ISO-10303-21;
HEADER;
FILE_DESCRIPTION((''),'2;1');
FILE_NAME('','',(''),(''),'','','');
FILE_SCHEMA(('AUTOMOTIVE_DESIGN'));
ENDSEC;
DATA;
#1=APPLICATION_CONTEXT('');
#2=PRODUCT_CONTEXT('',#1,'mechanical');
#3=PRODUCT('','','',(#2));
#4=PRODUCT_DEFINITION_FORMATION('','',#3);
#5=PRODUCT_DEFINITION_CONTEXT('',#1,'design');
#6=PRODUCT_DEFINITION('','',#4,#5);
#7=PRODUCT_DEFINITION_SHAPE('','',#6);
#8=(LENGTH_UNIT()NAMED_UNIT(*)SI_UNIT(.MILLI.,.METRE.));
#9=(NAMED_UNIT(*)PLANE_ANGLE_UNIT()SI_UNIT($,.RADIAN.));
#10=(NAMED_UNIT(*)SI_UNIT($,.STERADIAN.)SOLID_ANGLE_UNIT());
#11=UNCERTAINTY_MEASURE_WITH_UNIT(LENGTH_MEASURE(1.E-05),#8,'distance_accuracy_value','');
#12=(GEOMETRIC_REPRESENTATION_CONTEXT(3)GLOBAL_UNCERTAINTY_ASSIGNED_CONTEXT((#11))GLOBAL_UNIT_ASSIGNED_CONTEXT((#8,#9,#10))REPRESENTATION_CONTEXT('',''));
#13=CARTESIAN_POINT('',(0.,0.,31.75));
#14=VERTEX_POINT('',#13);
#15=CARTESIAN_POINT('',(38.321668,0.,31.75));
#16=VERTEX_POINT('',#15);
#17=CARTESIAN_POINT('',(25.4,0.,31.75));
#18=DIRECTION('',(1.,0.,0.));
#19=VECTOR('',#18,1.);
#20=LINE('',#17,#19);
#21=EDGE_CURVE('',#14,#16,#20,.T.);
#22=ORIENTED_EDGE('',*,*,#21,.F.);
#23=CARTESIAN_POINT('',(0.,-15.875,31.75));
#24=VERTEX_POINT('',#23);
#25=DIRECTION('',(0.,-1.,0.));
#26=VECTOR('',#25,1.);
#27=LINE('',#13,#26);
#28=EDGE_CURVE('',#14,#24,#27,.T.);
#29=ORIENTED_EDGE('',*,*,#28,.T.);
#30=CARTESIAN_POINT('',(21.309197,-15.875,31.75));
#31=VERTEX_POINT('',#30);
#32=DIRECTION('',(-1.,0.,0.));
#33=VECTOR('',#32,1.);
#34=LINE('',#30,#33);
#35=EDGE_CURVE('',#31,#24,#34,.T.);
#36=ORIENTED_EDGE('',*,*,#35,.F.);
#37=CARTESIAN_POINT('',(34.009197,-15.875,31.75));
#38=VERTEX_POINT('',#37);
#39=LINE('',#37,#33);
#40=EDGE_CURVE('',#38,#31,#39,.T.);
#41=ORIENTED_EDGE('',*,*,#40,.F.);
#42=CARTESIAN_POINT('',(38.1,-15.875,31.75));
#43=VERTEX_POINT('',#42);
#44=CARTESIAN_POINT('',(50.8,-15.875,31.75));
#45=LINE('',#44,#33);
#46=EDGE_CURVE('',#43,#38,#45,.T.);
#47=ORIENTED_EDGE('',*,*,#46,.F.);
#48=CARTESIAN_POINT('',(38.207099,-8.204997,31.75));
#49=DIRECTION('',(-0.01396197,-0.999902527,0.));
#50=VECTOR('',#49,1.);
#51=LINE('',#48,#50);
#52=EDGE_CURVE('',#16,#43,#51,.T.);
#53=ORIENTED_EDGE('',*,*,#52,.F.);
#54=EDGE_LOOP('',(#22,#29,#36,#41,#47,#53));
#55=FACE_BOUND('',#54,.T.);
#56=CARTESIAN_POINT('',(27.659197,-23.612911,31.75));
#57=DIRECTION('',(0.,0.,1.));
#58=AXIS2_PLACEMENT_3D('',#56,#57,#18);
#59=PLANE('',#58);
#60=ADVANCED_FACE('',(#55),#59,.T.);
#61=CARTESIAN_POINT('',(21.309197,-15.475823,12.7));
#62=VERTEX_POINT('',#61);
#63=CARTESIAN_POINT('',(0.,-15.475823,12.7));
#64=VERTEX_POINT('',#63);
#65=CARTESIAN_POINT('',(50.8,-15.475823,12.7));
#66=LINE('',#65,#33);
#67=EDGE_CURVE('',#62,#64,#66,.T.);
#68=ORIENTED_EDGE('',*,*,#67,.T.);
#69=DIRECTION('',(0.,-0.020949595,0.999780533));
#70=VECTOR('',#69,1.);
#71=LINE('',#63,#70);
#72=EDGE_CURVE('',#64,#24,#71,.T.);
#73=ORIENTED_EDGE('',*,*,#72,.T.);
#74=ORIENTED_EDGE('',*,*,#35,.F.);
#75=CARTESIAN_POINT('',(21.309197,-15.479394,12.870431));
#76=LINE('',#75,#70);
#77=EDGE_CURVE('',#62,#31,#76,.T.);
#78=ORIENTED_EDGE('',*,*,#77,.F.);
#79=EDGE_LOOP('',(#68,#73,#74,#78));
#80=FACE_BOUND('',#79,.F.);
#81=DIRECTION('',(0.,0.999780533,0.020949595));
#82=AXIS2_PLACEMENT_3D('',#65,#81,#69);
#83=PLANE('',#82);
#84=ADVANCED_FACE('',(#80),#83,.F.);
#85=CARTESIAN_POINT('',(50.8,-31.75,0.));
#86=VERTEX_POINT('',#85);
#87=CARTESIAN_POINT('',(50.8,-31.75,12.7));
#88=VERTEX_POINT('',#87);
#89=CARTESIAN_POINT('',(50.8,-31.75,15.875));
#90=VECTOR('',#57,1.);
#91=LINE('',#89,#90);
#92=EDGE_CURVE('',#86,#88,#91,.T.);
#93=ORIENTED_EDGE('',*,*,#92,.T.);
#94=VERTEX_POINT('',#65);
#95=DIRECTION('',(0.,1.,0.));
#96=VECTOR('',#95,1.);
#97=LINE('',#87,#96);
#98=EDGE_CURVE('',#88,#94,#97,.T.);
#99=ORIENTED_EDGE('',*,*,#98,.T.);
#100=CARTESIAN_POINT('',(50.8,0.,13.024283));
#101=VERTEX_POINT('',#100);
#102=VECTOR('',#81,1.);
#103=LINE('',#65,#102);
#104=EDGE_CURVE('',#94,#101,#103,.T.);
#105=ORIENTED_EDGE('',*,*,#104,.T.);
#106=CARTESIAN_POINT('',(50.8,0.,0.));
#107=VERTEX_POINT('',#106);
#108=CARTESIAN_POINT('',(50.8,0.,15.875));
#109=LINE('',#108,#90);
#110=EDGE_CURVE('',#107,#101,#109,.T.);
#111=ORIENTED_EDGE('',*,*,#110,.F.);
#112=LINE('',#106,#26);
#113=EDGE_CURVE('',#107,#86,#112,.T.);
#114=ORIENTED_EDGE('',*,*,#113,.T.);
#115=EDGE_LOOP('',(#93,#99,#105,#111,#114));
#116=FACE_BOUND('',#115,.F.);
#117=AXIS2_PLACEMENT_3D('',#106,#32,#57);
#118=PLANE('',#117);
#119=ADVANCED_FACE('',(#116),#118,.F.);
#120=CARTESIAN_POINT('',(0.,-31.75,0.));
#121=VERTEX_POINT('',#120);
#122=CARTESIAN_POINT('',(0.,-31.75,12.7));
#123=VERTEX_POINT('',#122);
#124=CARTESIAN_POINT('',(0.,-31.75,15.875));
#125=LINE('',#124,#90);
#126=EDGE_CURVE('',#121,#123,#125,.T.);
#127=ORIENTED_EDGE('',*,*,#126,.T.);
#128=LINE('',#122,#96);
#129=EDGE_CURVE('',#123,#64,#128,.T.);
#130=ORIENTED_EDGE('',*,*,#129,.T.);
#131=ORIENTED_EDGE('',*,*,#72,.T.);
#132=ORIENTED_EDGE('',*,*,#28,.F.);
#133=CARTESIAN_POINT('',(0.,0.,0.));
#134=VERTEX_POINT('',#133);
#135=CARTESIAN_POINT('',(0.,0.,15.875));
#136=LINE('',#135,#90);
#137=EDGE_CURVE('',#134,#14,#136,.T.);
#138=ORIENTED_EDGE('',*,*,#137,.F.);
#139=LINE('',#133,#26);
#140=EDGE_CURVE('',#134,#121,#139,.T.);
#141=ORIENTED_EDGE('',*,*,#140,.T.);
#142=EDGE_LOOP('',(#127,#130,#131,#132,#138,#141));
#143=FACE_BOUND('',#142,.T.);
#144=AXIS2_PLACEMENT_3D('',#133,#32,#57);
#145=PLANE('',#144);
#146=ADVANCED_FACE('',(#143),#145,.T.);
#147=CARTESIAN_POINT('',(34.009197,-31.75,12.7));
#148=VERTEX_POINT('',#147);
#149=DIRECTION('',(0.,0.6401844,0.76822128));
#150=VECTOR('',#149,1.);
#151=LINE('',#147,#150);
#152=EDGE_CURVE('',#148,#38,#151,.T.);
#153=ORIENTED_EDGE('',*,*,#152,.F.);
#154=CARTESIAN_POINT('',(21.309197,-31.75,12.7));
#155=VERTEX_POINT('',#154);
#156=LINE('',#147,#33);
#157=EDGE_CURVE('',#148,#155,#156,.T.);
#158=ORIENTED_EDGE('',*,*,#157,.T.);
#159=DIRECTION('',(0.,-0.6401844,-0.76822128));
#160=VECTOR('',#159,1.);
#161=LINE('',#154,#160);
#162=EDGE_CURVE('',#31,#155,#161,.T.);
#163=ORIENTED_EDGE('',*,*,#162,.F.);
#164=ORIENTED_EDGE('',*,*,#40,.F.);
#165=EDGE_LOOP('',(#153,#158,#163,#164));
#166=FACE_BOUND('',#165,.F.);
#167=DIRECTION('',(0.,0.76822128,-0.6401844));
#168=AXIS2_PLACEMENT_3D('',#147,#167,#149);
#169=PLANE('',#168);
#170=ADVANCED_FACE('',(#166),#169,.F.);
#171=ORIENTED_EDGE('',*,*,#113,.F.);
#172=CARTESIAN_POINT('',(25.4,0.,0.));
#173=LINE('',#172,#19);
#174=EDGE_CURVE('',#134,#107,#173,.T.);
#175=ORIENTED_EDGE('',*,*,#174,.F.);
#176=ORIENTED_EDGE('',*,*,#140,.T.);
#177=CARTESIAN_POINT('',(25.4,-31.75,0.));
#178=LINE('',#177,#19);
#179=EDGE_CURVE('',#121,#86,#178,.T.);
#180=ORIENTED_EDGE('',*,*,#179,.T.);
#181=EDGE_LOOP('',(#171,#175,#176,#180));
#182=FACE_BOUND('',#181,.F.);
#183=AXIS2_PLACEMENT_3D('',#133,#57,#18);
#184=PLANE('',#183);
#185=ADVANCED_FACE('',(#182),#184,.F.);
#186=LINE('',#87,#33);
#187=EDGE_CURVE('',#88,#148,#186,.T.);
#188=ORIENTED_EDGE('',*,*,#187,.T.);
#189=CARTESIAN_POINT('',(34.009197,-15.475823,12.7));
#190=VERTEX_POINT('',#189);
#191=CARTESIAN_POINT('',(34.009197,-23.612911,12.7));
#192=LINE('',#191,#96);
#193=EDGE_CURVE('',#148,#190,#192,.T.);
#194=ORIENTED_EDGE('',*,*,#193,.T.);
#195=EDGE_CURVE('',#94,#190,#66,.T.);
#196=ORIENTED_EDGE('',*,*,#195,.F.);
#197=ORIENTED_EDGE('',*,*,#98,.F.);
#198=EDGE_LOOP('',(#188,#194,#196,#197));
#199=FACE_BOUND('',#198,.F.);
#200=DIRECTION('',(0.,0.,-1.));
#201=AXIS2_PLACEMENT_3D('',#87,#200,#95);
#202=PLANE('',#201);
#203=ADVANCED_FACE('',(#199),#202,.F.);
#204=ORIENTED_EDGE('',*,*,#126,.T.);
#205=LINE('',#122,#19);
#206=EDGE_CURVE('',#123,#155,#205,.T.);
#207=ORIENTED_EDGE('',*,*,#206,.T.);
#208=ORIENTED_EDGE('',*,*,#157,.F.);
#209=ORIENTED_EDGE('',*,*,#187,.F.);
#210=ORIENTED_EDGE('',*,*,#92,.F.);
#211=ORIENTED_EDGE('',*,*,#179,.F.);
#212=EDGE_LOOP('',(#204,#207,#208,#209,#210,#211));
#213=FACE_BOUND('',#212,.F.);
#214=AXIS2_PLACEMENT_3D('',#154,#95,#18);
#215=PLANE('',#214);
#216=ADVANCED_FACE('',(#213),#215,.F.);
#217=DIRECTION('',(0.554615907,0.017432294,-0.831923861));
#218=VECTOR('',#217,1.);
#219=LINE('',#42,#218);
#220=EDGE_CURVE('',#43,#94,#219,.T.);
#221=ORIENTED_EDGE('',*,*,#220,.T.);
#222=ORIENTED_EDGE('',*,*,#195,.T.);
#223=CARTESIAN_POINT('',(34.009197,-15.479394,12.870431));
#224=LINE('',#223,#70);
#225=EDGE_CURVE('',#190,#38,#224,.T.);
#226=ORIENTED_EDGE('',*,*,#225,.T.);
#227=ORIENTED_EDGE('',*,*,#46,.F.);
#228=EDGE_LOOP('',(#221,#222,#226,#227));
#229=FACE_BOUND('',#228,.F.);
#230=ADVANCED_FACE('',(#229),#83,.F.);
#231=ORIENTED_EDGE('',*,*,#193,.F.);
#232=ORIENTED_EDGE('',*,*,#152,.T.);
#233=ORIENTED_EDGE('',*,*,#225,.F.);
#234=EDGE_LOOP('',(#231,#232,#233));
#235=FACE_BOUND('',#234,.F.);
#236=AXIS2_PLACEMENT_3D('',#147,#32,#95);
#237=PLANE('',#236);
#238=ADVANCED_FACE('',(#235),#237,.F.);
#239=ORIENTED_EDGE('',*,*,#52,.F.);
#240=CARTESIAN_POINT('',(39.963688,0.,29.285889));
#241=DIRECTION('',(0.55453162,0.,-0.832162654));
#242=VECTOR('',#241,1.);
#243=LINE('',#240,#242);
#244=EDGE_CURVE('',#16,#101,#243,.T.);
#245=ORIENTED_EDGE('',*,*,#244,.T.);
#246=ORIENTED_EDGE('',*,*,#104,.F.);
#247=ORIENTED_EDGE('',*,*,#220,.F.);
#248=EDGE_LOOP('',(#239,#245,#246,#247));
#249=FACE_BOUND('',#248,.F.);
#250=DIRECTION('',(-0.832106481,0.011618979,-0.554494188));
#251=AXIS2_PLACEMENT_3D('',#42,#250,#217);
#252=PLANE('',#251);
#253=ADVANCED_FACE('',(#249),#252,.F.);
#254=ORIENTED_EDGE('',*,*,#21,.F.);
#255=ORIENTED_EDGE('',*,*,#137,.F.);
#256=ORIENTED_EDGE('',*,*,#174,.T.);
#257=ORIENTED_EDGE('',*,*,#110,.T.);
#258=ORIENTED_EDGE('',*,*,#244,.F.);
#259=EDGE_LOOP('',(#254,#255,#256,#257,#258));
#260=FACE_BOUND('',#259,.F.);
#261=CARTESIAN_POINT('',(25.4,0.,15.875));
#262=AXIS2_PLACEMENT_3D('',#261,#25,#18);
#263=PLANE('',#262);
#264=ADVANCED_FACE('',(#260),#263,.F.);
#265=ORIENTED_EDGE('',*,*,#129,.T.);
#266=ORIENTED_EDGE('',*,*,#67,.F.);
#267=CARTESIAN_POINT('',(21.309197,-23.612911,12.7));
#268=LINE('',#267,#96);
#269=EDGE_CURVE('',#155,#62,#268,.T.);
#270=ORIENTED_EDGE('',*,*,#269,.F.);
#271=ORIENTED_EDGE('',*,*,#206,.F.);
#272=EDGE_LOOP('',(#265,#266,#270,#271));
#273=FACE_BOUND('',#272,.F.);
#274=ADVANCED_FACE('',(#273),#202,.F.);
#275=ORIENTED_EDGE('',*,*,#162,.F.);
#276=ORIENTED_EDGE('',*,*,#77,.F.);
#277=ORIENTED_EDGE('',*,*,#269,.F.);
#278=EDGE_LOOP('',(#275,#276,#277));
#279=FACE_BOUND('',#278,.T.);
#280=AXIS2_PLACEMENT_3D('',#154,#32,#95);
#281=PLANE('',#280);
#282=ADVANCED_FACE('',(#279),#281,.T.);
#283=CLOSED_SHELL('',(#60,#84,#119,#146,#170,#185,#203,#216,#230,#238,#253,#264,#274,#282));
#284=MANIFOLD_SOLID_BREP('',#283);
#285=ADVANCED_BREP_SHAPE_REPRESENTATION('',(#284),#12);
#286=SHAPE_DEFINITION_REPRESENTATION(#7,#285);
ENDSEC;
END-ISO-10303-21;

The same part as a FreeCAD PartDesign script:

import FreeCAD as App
import Part
import Sketcher
from FreeCAD import Vector
Q = App.Units.Quantity

doc = App.newDocument("Part")
body = doc.addObject("PartDesign::Body", "Body")

# Sketch on XZ plane
sketch1 = body.newObject("Sketcher::SketchObject", "Sketch")
sketch1.AttachmentSupport = (doc.getObject("XZ_Plane"), [""])
sketch1.MapMode = "FlatFace"
sketch1.addGeometry(Part.LineSegment(Vector(0, 32, 0), Vector(0, 0, 0)), False)
sketch1.addGeometry(Part.LineSegment(Vector(0, 0, 0), Vector(51, 0, 0)), False)
sketch1.addGeometry(Part.LineSegment(Vector(51, 0, 0), Vector(51, 32, 0)), False)
sketch1.addGeometry(Part.LineSegment(Vector(51, 32, 0), Vector(0, 32, 0)), False)
sketch1.addConstraint(Sketcher.Constraint("Coincident", 0, 2, 1, 1))
sketch1.addConstraint(Sketcher.Constraint("Coincident", 1, 2, 2, 1))
sketch1.addConstraint(Sketcher.Constraint("Coincident", 2, 2, 3, 1))
sketch1.addConstraint(Sketcher.Constraint("Coincident", 3, 2, 0, 1))
sketch1.addConstraint(Sketcher.Constraint("Vertical", 0))
sketch1.addConstraint(Sketcher.Constraint("Horizontal", 1))
sketch1.addConstraint(Sketcher.Constraint("Vertical", 2))
sketch1.addConstraint(Sketcher.Constraint("Horizontal", 3))
sketch1.addConstraint(Sketcher.Constraint("Coincident", 0, 2, -1, 1))
sketch1.addConstraint(Sketcher.Constraint("DistanceX", 1, 1, 1, 2, Q("2 in")))
sketch1.addConstraint(Sketcher.Constraint("DistanceY", 0, 2, 0, 1, Q("1.25 in")))
pad1 = body.newObject("PartDesign::Pad", "Pad")
pad1.Profile = sketch1
pad1.Length = Q("1.25 in")

# Sketch on YZ plane
sketch2 = body.newObject("Sketcher::SketchObject", "Sketch001")
sketch2.AttachmentSupport = (doc.getObject("YZ_Plane"), [""])
sketch2.MapMode = "FlatFace"
sketch2.AttachmentOffset = App.Placement(Vector(0, 0, 2 * 25.4), App.Rotation())
sketch2.addGeometry(Part.LineSegment(Vector(-32, 32, 0), Vector(-32, 13, 0)), False)
sketch2.addGeometry(Part.LineSegment(Vector(-32, 13, 0), Vector(-16, 32, 0)), False)
sketch2.addGeometry(Part.LineSegment(Vector(-16, 32, 0), Vector(-32, 32, 0)), False)
sketch2.addConstraint(Sketcher.Constraint("Coincident", 0, 2, 1, 1))
sketch2.addConstraint(Sketcher.Constraint("Coincident", 1, 2, 2, 1))
sketch2.addConstraint(Sketcher.Constraint("Coincident", 2, 2, 0, 1))
sketch2.addConstraint(Sketcher.Constraint("Vertical", 0))
sketch2.addConstraint(Sketcher.Constraint("Horizontal", 2))
sketch2.addConstraint(Sketcher.Constraint("DistanceY", 0, 2, 0, 1, Q("0.75 in")))
sketch2.addConstraint(Sketcher.Constraint("DistanceY", -1, 1, 0, 2, Q("0.5 in")))
sketch2.addConstraint(Sketcher.Constraint("DistanceX", 2, 2, 2, 1, Q("0.625 in")))
sketch2.addConstraint(Sketcher.Constraint("DistanceX", 0, 2, -1, 1, Q("1.25 in")))
pocket1 = body.newObject("PartDesign::Pocket", "Pocket")
pocket1.Profile = sketch2
pocket1.Length = Q("2 in")

# Sketch on YZ plane
sketch3 = body.newObject("Sketcher::SketchObject", "Sketch002")
sketch3.AttachmentSupport = (doc.getObject("YZ_Plane"), [""])
sketch3.MapMode = "FlatFace"
sketch3.AttachmentOffset = App.Placement(Vector(0, 0, 2 * 25.4), App.Rotation())
sketch3.addGeometry(Part.LineSegment(Vector(-16, 32, 0), Vector(-32, 13, 0)), False)
sketch3.addGeometry(Part.LineSegment(Vector(-32, 13, 0), Vector(-15, 13, 0)), False)
sketch3.addGeometry(Part.LineSegment(Vector(-15, 13, 0), Vector(-16, 32, 0)), False)
sketch3.addConstraint(Sketcher.Constraint("Coincident", 0, 2, 1, 1))
sketch3.addConstraint(Sketcher.Constraint("Coincident", 1, 2, 2, 1))
sketch3.addConstraint(Sketcher.Constraint("Coincident", 2, 2, 0, 1))
sketch3.addConstraint(Sketcher.Constraint("Horizontal", 1))
sketch3.addConstraint(Sketcher.Constraint("DistanceY", -1, 1, 0, 2, Q("0.5 in")))
sketch3.addConstraint(Sketcher.Constraint("DistanceX", 0, 2, -1, 1, Q("1.25 in")))
sketch3.addConstraint(Sketcher.Constraint("DistanceY", -1, 1, 2, 2, Q("1.25 in")))
sketch3.addConstraint(Sketcher.Constraint("DistanceX", 2, 2, -1, 1, Q("0.625 in")))
sketch3.addConstraint(Sketcher.Constraint("Distance", 2, Q("19.054182 mm")))
pocket2 = body.newObject("PartDesign::Pocket", "Pocket001")
pocket2.Profile = sketch3
pocket2.Length = Q("2 in")

# Sketch on an angled plane
sketch4 = body.newObject("Sketcher::SketchObject", "Sketch003")
sketch4.Placement = App.Placement(Vector(0, -15.203029, -0.318567), App.Rotation(Vector(1, 0, 0), Vector(0, -0.020949595, 0.999780533), Vector(0, -0.999780533, -0.020949595), "ZXY"))
sketch4.addGeometry(Part.LineSegment(Vector(38, 32, 0), Vector(51, 13, 0)), False)
sketch4.addGeometry(Part.LineSegment(Vector(51, 13, 0), Vector(51, 32, 0)), False)
sketch4.addGeometry(Part.LineSegment(Vector(51, 32, 0), Vector(38, 32, 0)), False)
sketch4.addConstraint(Sketcher.Constraint("Coincident", 0, 2, 1, 1))
sketch4.addConstraint(Sketcher.Constraint("Coincident", 1, 2, 2, 1))
sketch4.addConstraint(Sketcher.Constraint("Coincident", 2, 2, 0, 1))
sketch4.addConstraint(Sketcher.Constraint("Vertical", 1))
sketch4.addConstraint(Sketcher.Constraint("Horizontal", 2))
sketch4.addConstraint(Sketcher.Constraint("DistanceX", 2, 2, 2, 1, Q("0.5 in")))
sketch4.addConstraint(Sketcher.Constraint("DistanceX", -1, 1, 0, 2, Q("2 in")))
sketch4.addConstraint(Sketcher.Constraint("DistanceY", 1, 1, 1, 2, Q("19.054182 mm")))
sketch4.addConstraint(Sketcher.Constraint("DistanceY", -1, 1, 0, 2, Q("13.021425 mm")))
pocket3 = body.newObject("PartDesign::Pocket", "Pocket002")
pocket3.Profile = sketch4
pocket3.Length = Q("1 in")

# Sketch on XY plane
sketch5 = body.newObject("Sketcher::SketchObject", "Sketch004")
sketch5.AttachmentSupport = (doc.getObject("XY_Plane"), [""])
sketch5.MapMode = "FlatFace"
sketch5.AttachmentOffset = App.Placement(Vector(0, 0, 0.5 * 25.4), App.Rotation())
sketch5.addGeometry(Part.LineSegment(Vector(21, -15, 0), Vector(21, -32, 0)), False)
sketch5.addGeometry(Part.LineSegment(Vector(21, -32, 0), Vector(34, -32, 0)), False)
sketch5.addGeometry(Part.LineSegment(Vector(34, -32, 0), Vector(34, -15, 0)), False)
sketch5.addGeometry(Part.LineSegment(Vector(34, -15, 0), Vector(21, -15, 0)), False)
sketch5.addConstraint(Sketcher.Constraint("Coincident", 0, 2, 1, 1))
sketch5.addConstraint(Sketcher.Constraint("Coincident", 1, 2, 2, 1))
sketch5.addConstraint(Sketcher.Constraint("Coincident", 2, 2, 3, 1))
sketch5.addConstraint(Sketcher.Constraint("Coincident", 3, 2, 0, 1))
sketch5.addConstraint(Sketcher.Constraint("Vertical", 0))
sketch5.addConstraint(Sketcher.Constraint("Horizontal", 1))
sketch5.addConstraint(Sketcher.Constraint("Vertical", 2))
sketch5.addConstraint(Sketcher.Constraint("Horizontal", 3))
sketch5.addConstraint(Sketcher.Constraint("DistanceX", 1, 1, 1, 2, Q("0.5 in")))
sketch5.addConstraint(Sketcher.Constraint("DistanceY", 0, 2, -1, 1, Q("1.25 in")))
sketch5.addConstraint(Sketcher.Constraint("DistanceY", 0, 2, 0, 1, Q("16.274177 mm")))
sketch5.addConstraint(Sketcher.Constraint("DistanceX", -1, 1, 0, 2, Q("21.309197 mm")))
pad2 = body.newObject("PartDesign::Pad", "Pad001")
pad2.Profile = sketch5
pad2.Length = Q("0.75 in")

# Sketch on YZ plane
sketch6 = body.newObject("Sketcher::SketchObject", "Sketch005")
sketch6.AttachmentSupport = (doc.getObject("YZ_Plane"), [""])
sketch6.MapMode = "FlatFace"
sketch6.AttachmentOffset = App.Placement(Vector(0, 0, 34.009197), App.Rotation())
sketch6.addGeometry(Part.LineSegment(Vector(-32, 13, 0), Vector(-16, 32, 0)), False)
sketch6.addGeometry(Part.LineSegment(Vector(-16, 32, 0), Vector(-32, 32, 0)), False)
sketch6.addGeometry(Part.LineSegment(Vector(-32, 32, 0), Vector(-32, 13, 0)), False)
sketch6.addConstraint(Sketcher.Constraint("Coincident", 0, 2, 1, 1))
sketch6.addConstraint(Sketcher.Constraint("Coincident", 1, 2, 2, 1))
sketch6.addConstraint(Sketcher.Constraint("Coincident", 2, 2, 0, 1))
sketch6.addConstraint(Sketcher.Constraint("Horizontal", 1))
sketch6.addConstraint(Sketcher.Constraint("Vertical", 2))
sketch6.addConstraint(Sketcher.Constraint("DistanceY", 2, 2, 2, 1, Q("0.75 in")))
sketch6.addConstraint(Sketcher.Constraint("DistanceY", -1, 1, 2, 2, Q("0.5 in")))
sketch6.addConstraint(Sketcher.Constraint("DistanceX", 1, 2, 1, 1, Q("0.625 in")))
sketch6.addConstraint(Sketcher.Constraint("DistanceX", 1, 2, -1, 1, Q("1.25 in")))
pocket4 = body.newObject("PartDesign::Pocket", "Pocket003")
pocket4.Profile = sketch6
pocket4.Length = Q("1 in")

doc.recompute()
